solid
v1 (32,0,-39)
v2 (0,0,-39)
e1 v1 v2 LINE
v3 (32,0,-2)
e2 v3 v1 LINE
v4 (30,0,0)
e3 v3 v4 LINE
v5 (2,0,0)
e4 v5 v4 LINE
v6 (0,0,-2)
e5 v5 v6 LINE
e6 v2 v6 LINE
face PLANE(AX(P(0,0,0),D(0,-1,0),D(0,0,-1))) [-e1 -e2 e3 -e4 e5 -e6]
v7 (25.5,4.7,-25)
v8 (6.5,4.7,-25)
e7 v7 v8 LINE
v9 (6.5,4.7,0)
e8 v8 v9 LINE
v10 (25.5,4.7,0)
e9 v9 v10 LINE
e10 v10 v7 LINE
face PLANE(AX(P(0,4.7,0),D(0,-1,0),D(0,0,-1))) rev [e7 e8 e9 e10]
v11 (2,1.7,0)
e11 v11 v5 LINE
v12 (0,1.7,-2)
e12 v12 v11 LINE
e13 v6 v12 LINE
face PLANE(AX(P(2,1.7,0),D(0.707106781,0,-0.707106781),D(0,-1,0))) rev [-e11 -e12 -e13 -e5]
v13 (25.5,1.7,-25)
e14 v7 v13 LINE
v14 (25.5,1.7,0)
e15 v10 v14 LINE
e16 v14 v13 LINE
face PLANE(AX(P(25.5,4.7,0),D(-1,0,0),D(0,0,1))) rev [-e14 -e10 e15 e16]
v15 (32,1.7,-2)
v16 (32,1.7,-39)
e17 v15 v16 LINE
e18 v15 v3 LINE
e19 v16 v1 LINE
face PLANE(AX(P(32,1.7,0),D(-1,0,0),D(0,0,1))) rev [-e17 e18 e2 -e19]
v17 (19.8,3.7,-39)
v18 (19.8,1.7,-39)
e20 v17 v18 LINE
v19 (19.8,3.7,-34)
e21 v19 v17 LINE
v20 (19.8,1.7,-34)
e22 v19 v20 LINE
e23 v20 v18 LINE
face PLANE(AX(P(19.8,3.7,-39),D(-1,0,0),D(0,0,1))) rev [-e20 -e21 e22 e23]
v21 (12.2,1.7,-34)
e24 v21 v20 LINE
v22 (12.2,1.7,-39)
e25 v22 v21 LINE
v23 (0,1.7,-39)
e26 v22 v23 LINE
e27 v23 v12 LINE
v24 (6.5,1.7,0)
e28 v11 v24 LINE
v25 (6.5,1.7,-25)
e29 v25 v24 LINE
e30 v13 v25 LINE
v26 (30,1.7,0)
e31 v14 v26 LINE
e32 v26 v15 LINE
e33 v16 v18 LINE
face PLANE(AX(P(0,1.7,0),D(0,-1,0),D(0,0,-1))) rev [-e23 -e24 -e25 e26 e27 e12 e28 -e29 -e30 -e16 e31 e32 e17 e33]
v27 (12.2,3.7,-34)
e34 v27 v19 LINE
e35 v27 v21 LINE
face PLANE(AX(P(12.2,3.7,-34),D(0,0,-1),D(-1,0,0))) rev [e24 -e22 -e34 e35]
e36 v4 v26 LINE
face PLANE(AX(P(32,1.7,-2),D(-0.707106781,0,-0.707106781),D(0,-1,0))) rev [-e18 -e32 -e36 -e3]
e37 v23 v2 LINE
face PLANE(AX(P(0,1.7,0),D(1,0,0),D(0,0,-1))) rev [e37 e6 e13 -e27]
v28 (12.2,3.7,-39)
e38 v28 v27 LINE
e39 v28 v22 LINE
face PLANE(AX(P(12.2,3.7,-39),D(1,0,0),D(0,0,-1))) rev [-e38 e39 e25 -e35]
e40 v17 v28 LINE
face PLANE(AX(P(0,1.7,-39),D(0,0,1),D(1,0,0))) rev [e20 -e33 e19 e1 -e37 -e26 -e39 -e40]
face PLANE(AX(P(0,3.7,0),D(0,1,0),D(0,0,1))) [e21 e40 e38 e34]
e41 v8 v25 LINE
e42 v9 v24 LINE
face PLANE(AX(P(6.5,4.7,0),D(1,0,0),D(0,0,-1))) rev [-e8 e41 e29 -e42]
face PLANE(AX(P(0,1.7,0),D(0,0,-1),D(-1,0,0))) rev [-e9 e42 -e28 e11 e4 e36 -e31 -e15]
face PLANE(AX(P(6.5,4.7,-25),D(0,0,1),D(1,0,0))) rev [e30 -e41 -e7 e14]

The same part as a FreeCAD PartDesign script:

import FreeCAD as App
import Part
import Sketcher

V = App.Vector
Q = App.Units.Quantity


def edges_at(feature, points):
    """Names of the edges that pass closest to the given points."""
    edges = feature.Shape.Edges
    near = lambda p: min(range(len(edges)), key=lambda i: edges[i].distToShape(Part.Vertex(*p))[0])
    return sorted({f"Edge{near(p) + 1}" for p in points})

doc = App.newDocument("Part")
body = doc.addObject("PartDesign::Body", "Body")

# Sketch on XZ plane
sketch1 = body.newObject("Sketcher::SketchObject", "Sketch")
sketch1.AttachmentSupport = (doc.getObject("XZ_Plane"), [""])
sketch1.MapMode = "FlatFace"
sketch1.addGeometry([
    Part.LineSegment(V(0, -39, 0), V(0, 0, 0)),
    Part.LineSegment(V(0, 0, 0), V(32, 0, 0)),
    Part.LineSegment(V(32, 0, 0), V(32, -39, 0)),
    Part.LineSegment(V(32, -39, 0), V(0, -39, 0)),
], False)
sketch1.addConstraint([
    Sketcher.Constraint("Coincident", 0, 2, 1, 1),
    Sketcher.Constraint("Coincident", 1, 2, 2, 1),
    Sketcher.Constraint("Coincident", 2, 2, 3, 1),
    Sketcher.Constraint("Coincident", 3, 2, 0, 1),
    Sketcher.Constraint("Vertical", 0),
    Sketcher.Constraint("Horizontal", 1),
    Sketcher.Constraint("Vertical", 2),
    Sketcher.Constraint("Horizontal", 3),
    Sketcher.Constraint("Coincident", 0, 2, -1, 1),
    Sketcher.Constraint("DistanceX", 1, 1, 1, 2, Q("32 mm")),
    Sketcher.Constraint("DistanceY", 0, 1, 0, 2, Q("39 mm")),
])
pad1 = body.newObject("PartDesign::Pad", "Pad")
pad1.Profile = sketch1
pad1.Length = 1.7
pad1.Reversed = True
doc.recompute()

chamfer = body.newObject("PartDesign::Chamfer", "Chamfer")
chamfer.Base = (pad1, edges_at(pad1, [(32, 0.85, 0), (0, 0.85, 0)]))
chamfer.Size = 2

# Sketch on XZ plane
sketch2 = body.newObject("Sketcher::SketchObject", "Sketch001")
sketch2.AttachmentSupport = (doc.getObject("XZ_Plane"), [""])
sketch2.MapMode = "FlatFace"
sketch2.AttachmentOffset = App.Placement(V(0, 0, -1.7), App.Rotation())
sketch2.addGeometry([
    Part.LineSegment(V(6.5, -25, 0), V(6.5, 0, 0)),
    Part.LineSegment(V(6.5, 0, 0), V(25.5, 0, 0)),
    Part.LineSegment(V(25.5, 0, 0), V(25.5, -25, 0)),
    Part.LineSegment(V(25.5, -25, 0), V(6.5, -25, 0)),
], False)
sketch2.addConstraint([
    Sketcher.Constraint("Coincident", 0, 2, 1, 1),
    Sketcher.Constraint("Coincident", 1, 2, 2, 1),
    Sketcher.Constraint("Coincident", 2, 2, 3, 1),
    Sketcher.Constraint("Coincident", 3, 2, 0, 1),
    Sketcher.Constraint("Vertical", 0),
    Sketcher.Constraint("Horizontal", 1),
    Sketcher.Constraint("Vertical", 2),
    Sketcher.Constraint("Horizontal", 3),
    Sketcher.Constraint("PointOnObject", 0, 2, -1),
    Sketcher.Constraint("DistanceX", 1, 1, 1, 2, Q("19 mm")),
    Sketcher.Constraint("DistanceY", 0, 1, 0, 2, Q("25 mm")),
    Sketcher.Constraint("DistanceX", -1, 1, 0, 2, Q("6.5 mm")),
])
pad2 = body.newObject("PartDesign::Pad", "Pad001")
pad2.Profile = sketch2
pad2.Length = 3
pad2.Reversed = True

# Sketch on XZ plane
sketch3 = body.newObject("Sketcher::SketchObject", "Sketch002")
sketch3.AttachmentSupport = (doc.getObject("XZ_Plane"), [""])
sketch3.MapMode = "FlatFace"
sketch3.AttachmentOffset = App.Placement(V(0, 0, -1.7), App.Rotation())
sketch3.addGeometry([
    Part.LineSegment(V(12.2, -39, 0), V(12.2, -34, 0)),
    Part.LineSegment(V(12.2, -34, 0), V(19.8, -34, 0)),
    Part.LineSegment(V(19.8, -34, 0), V(19.8, -39, 0)),
    Part.LineSegment(V(19.8, -39, 0), V(12.2, -39, 0)),
], False)
sketch3.addConstraint([
    Sketcher.Constraint("Coincident", 0, 2, 1, 1),
    Sketcher.Constraint("Coincident", 1, 2, 2, 1),
    Sketcher.Constraint("Coincident", 2, 2, 3, 1),
    Sketcher.Constraint("Coincident", 3, 2, 0, 1),
    Sketcher.Constraint("Vertical", 0),
    Sketcher.Constraint("Horizontal", 1),
    Sketcher.Constraint("Vertical", 2),
    Sketcher.Constraint("Horizontal", 3),
    Sketcher.Constraint("DistanceY", 0, 1, 0, 2, Q("5 mm")),
    Sketcher.Constraint("DistanceX", 1, 1, 1, 2, Q("7.6 mm")),
    Sketcher.Constraint("DistanceY", 0, 2, -1, 1, Q("34 mm")),
    Sketcher.Constraint("DistanceX", -1, 1, 0, 2, Q("12.2 mm")),
])
pad3 = body.newObject("PartDesign::Pad", "Pad002")
pad3.Profile = sketch3
pad3.Length = 2
pad3.Reversed = True

doc.recompute()
